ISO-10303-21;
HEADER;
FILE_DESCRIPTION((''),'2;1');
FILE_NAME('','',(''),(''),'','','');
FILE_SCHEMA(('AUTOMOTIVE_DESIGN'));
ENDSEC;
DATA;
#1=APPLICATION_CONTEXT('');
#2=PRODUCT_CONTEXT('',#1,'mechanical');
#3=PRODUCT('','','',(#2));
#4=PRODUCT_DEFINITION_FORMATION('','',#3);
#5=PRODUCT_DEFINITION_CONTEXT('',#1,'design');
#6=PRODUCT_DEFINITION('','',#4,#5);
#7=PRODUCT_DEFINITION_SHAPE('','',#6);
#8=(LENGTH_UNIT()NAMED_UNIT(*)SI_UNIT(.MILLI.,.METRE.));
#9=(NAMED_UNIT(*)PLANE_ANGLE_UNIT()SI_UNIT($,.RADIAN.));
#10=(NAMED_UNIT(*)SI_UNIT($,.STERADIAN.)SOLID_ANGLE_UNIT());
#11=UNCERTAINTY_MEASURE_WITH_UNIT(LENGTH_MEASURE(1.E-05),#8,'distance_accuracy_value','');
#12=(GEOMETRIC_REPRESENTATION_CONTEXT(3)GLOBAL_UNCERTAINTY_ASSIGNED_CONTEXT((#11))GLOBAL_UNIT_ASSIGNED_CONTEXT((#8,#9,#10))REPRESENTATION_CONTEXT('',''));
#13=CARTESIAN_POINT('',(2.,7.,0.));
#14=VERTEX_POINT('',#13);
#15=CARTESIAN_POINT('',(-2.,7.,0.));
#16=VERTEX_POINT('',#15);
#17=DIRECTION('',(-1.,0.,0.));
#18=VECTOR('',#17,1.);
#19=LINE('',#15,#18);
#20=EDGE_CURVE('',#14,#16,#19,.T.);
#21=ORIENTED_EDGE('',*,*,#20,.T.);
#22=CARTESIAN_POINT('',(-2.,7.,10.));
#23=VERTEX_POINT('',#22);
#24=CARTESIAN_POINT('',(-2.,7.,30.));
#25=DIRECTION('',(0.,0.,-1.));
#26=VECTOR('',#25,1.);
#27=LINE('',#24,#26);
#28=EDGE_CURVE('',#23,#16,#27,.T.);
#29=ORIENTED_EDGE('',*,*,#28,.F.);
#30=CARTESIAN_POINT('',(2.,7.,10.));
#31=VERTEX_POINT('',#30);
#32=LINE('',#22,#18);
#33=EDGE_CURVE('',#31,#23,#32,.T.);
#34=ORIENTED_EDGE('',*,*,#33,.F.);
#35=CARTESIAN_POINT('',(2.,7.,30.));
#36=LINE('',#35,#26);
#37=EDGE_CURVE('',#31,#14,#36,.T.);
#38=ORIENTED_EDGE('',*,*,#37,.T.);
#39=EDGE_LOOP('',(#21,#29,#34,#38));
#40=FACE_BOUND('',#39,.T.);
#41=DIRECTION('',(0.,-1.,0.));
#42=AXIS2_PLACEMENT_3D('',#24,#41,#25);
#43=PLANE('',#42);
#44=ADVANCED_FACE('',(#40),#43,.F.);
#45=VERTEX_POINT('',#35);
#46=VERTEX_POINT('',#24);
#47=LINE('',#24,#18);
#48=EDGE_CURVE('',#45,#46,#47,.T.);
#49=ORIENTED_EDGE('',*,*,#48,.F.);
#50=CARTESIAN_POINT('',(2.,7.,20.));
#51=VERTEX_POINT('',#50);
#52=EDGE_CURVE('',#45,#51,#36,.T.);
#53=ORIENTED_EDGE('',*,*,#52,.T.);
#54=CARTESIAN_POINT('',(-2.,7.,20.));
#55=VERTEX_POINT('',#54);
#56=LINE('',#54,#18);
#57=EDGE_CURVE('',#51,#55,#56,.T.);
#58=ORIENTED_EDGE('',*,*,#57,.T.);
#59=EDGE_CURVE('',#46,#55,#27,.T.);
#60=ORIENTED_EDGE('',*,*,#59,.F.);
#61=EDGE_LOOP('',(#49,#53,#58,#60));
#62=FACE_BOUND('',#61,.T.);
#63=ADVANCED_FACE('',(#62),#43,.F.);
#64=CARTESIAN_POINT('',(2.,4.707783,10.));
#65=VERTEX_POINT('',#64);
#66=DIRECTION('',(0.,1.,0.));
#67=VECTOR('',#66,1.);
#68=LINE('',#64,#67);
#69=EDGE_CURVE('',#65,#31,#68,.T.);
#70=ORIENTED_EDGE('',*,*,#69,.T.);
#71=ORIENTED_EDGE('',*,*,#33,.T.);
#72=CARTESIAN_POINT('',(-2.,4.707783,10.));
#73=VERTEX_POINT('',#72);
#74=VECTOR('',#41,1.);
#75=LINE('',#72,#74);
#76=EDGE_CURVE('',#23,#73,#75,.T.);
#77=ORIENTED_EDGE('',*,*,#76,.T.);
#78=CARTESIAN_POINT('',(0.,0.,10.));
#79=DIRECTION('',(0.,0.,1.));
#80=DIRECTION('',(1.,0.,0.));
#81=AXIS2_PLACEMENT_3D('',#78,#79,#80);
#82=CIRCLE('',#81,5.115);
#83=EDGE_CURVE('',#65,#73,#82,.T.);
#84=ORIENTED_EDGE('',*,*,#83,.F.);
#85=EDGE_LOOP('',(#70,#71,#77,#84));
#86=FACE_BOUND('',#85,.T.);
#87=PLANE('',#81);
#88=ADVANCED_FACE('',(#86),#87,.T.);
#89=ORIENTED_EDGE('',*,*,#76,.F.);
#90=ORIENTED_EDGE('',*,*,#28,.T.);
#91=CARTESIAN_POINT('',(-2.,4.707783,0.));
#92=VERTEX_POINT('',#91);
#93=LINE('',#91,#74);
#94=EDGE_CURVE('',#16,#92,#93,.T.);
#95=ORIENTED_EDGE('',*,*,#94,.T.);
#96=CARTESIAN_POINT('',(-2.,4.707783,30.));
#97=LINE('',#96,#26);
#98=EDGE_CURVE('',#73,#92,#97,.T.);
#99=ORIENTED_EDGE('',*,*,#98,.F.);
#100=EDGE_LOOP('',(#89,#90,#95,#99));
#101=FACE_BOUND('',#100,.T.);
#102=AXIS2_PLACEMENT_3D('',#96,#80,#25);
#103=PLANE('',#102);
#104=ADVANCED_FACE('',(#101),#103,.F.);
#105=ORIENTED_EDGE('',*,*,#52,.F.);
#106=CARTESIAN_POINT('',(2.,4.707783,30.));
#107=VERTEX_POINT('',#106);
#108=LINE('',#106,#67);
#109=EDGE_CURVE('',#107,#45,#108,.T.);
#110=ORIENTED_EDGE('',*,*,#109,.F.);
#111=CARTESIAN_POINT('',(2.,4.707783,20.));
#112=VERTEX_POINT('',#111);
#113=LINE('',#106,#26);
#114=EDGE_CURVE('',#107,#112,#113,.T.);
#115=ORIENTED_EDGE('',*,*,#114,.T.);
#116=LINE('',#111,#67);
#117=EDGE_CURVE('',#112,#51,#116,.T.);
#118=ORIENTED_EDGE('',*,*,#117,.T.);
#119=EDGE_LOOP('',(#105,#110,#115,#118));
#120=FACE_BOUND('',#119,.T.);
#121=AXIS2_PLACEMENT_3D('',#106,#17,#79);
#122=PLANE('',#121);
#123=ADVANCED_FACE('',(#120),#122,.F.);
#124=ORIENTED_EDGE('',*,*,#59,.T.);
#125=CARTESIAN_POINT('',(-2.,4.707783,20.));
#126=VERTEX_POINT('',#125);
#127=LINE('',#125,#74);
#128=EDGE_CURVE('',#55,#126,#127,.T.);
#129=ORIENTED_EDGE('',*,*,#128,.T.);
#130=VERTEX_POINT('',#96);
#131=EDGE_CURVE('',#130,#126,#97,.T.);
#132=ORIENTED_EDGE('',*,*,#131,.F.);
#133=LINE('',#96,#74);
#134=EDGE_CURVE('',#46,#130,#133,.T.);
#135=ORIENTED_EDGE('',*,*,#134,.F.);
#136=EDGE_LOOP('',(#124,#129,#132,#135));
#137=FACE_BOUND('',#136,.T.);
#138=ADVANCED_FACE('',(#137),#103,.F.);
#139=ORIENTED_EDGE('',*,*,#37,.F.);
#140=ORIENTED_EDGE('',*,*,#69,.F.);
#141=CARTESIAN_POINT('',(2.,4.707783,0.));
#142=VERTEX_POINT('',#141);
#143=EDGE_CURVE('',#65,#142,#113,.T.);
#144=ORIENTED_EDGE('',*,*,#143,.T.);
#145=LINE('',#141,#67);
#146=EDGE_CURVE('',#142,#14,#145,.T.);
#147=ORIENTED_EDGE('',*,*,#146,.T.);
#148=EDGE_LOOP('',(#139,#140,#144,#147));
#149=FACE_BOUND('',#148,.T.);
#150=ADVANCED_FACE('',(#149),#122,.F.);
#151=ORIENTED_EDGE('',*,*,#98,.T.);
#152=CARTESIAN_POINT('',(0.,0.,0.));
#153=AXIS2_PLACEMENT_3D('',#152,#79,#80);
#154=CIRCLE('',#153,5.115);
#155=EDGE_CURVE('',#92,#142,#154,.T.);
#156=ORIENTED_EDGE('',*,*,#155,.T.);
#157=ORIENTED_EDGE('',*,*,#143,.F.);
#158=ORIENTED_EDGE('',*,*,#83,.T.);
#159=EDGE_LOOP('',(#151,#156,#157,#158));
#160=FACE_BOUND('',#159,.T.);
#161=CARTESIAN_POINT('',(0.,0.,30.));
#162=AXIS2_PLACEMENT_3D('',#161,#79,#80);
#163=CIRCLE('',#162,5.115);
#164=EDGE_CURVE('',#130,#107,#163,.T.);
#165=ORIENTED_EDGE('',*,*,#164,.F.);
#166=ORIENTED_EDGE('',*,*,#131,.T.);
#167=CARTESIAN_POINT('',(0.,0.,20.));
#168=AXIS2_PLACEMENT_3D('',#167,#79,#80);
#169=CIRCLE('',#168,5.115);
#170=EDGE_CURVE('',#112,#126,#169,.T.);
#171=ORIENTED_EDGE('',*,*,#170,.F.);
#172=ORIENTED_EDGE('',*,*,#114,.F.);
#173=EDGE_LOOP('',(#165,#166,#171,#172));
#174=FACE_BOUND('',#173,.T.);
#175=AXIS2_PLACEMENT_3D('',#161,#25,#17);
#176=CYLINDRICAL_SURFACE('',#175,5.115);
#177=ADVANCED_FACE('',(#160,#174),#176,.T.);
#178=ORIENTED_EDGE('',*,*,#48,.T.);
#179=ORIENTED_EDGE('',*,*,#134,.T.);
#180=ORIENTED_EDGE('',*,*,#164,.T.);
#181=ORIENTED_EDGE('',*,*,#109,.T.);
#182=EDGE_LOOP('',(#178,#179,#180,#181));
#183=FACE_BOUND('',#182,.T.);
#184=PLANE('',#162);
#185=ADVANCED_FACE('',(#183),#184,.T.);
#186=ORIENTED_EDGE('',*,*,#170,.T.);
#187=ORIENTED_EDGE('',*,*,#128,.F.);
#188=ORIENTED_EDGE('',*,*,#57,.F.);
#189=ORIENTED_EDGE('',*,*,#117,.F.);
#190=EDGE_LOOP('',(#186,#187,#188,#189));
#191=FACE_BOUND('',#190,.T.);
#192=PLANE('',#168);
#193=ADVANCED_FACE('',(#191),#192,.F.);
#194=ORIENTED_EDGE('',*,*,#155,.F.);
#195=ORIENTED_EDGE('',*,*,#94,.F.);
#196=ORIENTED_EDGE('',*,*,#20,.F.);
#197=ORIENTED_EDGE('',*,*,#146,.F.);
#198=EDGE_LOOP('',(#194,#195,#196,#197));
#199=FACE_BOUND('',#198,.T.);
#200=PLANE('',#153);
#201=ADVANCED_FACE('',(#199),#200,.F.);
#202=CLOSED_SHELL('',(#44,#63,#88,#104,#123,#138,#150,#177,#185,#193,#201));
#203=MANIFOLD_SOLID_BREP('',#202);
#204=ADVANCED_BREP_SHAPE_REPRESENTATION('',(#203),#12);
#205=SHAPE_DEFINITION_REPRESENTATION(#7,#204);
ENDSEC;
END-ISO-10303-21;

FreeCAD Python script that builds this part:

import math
import FreeCAD as App
import Part
import Sketcher

doc = App.newDocument("Part")
body = doc.addObject("PartDesign::Body", "Body")

sketch1 = body.newObject("Sketcher::SketchObject", "Sketch")
sketch1.AttachmentSupport = (doc.getObject("XY_Plane"), [""])
sketch1.MapMode = "FlatFace"
sketch1.addGeometry(Part.LineSegment(App.Vector(-2, 7, 0), App.Vector(-2, 4.707783, 0)), False)
sketch1.addGeometry(Part.ArcOfCircle(Part.Circle(App.Vector(0, 0, 0), App.Vector(0, 0, 1), 5.115), math.radians(113.017163), math.radians(426.982837)), False)
sketch1.addGeometry(Part.LineSegment(App.Vector(2, 4.707783, 0), App.Vector(2, 7, 0)), False)
sketch1.addGeometry(Part.LineSegment(App.Vector(2, 7, 0), App.Vector(-2, 7, 0)), False)
sketch1.addConstraint(Sketcher.Constraint("Coincident", 0, 2, 1, 1))
sketch1.addConstraint(Sketcher.Constraint("Coincident", 1, 2, 2, 1))
sketch1.addConstraint(Sketcher.Constraint("Coincident", 2, 2, 3, 1))
sketch1.addConstraint(Sketcher.Constraint("Coincident", 3, 2, 0, 1))
sketch1.addConstraint(Sketcher.Constraint("Vertical", 0))
sketch1.addConstraint(Sketcher.Constraint("Vertical", 2))
sketch1.addConstraint(Sketcher.Constraint("Horizontal", 3))
sketch1.addConstraint(Sketcher.Constraint("Coincident", 1, 3, -1, 1))
sketch1.addConstraint(Sketcher.Constraint("Horizontal", 0, 2, 1, 2))
sketch1.addConstraint(Sketcher.Constraint("DistanceX", 3, 2, 3, 1, 4.0))
sketch1.addConstraint(Sketcher.Constraint("DistanceY", -1, 1, 2, 2, 7.0))
sketch1.addConstraint(Sketcher.Constraint("Radius", 1, 5.115))
pad1 = body.newObject("PartDesign::Pad", "Pad")
pad1.Profile = sketch1
pad1.Length = 30

sketch2 = body.newObject("Sketcher::SketchObject", "Sketch001")
sketch2.AttachmentSupport = (doc.getObject("XY_Plane"), [""])
sketch2.MapMode = "FlatFace"
sketch2.AttachmentOffset = App.Placement(App.Vector(0, 0, 10), App.Rotation())
sketch2.addGeometry(Part.Circle(App.Vector(0, 0, 0), App.Vector(0, 0, 1), 7.82247), False)
sketch2.addGeometry(Part.Circle(App.Vector(0, 0, 0), App.Vector(0, 0, 1), 5.115), False)
sketch2.addConstraint(Sketcher.Constraint("Coincident", 0, 3, -1, 1))
sketch2.addConstraint(Sketcher.Constraint("Coincident", 1, 3, -1, 1))
sketch2.addConstraint(Sketcher.Constraint("Diameter", 1, 10.23))
sketch2.addConstraint(Sketcher.Constraint("Diameter", 0, 15.644941))
pocket1 = body.newObject("PartDesign::Pocket", "Pocket")
pocket1.Profile = sketch2
pocket1.Length = 10
pocket1.Reversed = True

doc.recompute()
